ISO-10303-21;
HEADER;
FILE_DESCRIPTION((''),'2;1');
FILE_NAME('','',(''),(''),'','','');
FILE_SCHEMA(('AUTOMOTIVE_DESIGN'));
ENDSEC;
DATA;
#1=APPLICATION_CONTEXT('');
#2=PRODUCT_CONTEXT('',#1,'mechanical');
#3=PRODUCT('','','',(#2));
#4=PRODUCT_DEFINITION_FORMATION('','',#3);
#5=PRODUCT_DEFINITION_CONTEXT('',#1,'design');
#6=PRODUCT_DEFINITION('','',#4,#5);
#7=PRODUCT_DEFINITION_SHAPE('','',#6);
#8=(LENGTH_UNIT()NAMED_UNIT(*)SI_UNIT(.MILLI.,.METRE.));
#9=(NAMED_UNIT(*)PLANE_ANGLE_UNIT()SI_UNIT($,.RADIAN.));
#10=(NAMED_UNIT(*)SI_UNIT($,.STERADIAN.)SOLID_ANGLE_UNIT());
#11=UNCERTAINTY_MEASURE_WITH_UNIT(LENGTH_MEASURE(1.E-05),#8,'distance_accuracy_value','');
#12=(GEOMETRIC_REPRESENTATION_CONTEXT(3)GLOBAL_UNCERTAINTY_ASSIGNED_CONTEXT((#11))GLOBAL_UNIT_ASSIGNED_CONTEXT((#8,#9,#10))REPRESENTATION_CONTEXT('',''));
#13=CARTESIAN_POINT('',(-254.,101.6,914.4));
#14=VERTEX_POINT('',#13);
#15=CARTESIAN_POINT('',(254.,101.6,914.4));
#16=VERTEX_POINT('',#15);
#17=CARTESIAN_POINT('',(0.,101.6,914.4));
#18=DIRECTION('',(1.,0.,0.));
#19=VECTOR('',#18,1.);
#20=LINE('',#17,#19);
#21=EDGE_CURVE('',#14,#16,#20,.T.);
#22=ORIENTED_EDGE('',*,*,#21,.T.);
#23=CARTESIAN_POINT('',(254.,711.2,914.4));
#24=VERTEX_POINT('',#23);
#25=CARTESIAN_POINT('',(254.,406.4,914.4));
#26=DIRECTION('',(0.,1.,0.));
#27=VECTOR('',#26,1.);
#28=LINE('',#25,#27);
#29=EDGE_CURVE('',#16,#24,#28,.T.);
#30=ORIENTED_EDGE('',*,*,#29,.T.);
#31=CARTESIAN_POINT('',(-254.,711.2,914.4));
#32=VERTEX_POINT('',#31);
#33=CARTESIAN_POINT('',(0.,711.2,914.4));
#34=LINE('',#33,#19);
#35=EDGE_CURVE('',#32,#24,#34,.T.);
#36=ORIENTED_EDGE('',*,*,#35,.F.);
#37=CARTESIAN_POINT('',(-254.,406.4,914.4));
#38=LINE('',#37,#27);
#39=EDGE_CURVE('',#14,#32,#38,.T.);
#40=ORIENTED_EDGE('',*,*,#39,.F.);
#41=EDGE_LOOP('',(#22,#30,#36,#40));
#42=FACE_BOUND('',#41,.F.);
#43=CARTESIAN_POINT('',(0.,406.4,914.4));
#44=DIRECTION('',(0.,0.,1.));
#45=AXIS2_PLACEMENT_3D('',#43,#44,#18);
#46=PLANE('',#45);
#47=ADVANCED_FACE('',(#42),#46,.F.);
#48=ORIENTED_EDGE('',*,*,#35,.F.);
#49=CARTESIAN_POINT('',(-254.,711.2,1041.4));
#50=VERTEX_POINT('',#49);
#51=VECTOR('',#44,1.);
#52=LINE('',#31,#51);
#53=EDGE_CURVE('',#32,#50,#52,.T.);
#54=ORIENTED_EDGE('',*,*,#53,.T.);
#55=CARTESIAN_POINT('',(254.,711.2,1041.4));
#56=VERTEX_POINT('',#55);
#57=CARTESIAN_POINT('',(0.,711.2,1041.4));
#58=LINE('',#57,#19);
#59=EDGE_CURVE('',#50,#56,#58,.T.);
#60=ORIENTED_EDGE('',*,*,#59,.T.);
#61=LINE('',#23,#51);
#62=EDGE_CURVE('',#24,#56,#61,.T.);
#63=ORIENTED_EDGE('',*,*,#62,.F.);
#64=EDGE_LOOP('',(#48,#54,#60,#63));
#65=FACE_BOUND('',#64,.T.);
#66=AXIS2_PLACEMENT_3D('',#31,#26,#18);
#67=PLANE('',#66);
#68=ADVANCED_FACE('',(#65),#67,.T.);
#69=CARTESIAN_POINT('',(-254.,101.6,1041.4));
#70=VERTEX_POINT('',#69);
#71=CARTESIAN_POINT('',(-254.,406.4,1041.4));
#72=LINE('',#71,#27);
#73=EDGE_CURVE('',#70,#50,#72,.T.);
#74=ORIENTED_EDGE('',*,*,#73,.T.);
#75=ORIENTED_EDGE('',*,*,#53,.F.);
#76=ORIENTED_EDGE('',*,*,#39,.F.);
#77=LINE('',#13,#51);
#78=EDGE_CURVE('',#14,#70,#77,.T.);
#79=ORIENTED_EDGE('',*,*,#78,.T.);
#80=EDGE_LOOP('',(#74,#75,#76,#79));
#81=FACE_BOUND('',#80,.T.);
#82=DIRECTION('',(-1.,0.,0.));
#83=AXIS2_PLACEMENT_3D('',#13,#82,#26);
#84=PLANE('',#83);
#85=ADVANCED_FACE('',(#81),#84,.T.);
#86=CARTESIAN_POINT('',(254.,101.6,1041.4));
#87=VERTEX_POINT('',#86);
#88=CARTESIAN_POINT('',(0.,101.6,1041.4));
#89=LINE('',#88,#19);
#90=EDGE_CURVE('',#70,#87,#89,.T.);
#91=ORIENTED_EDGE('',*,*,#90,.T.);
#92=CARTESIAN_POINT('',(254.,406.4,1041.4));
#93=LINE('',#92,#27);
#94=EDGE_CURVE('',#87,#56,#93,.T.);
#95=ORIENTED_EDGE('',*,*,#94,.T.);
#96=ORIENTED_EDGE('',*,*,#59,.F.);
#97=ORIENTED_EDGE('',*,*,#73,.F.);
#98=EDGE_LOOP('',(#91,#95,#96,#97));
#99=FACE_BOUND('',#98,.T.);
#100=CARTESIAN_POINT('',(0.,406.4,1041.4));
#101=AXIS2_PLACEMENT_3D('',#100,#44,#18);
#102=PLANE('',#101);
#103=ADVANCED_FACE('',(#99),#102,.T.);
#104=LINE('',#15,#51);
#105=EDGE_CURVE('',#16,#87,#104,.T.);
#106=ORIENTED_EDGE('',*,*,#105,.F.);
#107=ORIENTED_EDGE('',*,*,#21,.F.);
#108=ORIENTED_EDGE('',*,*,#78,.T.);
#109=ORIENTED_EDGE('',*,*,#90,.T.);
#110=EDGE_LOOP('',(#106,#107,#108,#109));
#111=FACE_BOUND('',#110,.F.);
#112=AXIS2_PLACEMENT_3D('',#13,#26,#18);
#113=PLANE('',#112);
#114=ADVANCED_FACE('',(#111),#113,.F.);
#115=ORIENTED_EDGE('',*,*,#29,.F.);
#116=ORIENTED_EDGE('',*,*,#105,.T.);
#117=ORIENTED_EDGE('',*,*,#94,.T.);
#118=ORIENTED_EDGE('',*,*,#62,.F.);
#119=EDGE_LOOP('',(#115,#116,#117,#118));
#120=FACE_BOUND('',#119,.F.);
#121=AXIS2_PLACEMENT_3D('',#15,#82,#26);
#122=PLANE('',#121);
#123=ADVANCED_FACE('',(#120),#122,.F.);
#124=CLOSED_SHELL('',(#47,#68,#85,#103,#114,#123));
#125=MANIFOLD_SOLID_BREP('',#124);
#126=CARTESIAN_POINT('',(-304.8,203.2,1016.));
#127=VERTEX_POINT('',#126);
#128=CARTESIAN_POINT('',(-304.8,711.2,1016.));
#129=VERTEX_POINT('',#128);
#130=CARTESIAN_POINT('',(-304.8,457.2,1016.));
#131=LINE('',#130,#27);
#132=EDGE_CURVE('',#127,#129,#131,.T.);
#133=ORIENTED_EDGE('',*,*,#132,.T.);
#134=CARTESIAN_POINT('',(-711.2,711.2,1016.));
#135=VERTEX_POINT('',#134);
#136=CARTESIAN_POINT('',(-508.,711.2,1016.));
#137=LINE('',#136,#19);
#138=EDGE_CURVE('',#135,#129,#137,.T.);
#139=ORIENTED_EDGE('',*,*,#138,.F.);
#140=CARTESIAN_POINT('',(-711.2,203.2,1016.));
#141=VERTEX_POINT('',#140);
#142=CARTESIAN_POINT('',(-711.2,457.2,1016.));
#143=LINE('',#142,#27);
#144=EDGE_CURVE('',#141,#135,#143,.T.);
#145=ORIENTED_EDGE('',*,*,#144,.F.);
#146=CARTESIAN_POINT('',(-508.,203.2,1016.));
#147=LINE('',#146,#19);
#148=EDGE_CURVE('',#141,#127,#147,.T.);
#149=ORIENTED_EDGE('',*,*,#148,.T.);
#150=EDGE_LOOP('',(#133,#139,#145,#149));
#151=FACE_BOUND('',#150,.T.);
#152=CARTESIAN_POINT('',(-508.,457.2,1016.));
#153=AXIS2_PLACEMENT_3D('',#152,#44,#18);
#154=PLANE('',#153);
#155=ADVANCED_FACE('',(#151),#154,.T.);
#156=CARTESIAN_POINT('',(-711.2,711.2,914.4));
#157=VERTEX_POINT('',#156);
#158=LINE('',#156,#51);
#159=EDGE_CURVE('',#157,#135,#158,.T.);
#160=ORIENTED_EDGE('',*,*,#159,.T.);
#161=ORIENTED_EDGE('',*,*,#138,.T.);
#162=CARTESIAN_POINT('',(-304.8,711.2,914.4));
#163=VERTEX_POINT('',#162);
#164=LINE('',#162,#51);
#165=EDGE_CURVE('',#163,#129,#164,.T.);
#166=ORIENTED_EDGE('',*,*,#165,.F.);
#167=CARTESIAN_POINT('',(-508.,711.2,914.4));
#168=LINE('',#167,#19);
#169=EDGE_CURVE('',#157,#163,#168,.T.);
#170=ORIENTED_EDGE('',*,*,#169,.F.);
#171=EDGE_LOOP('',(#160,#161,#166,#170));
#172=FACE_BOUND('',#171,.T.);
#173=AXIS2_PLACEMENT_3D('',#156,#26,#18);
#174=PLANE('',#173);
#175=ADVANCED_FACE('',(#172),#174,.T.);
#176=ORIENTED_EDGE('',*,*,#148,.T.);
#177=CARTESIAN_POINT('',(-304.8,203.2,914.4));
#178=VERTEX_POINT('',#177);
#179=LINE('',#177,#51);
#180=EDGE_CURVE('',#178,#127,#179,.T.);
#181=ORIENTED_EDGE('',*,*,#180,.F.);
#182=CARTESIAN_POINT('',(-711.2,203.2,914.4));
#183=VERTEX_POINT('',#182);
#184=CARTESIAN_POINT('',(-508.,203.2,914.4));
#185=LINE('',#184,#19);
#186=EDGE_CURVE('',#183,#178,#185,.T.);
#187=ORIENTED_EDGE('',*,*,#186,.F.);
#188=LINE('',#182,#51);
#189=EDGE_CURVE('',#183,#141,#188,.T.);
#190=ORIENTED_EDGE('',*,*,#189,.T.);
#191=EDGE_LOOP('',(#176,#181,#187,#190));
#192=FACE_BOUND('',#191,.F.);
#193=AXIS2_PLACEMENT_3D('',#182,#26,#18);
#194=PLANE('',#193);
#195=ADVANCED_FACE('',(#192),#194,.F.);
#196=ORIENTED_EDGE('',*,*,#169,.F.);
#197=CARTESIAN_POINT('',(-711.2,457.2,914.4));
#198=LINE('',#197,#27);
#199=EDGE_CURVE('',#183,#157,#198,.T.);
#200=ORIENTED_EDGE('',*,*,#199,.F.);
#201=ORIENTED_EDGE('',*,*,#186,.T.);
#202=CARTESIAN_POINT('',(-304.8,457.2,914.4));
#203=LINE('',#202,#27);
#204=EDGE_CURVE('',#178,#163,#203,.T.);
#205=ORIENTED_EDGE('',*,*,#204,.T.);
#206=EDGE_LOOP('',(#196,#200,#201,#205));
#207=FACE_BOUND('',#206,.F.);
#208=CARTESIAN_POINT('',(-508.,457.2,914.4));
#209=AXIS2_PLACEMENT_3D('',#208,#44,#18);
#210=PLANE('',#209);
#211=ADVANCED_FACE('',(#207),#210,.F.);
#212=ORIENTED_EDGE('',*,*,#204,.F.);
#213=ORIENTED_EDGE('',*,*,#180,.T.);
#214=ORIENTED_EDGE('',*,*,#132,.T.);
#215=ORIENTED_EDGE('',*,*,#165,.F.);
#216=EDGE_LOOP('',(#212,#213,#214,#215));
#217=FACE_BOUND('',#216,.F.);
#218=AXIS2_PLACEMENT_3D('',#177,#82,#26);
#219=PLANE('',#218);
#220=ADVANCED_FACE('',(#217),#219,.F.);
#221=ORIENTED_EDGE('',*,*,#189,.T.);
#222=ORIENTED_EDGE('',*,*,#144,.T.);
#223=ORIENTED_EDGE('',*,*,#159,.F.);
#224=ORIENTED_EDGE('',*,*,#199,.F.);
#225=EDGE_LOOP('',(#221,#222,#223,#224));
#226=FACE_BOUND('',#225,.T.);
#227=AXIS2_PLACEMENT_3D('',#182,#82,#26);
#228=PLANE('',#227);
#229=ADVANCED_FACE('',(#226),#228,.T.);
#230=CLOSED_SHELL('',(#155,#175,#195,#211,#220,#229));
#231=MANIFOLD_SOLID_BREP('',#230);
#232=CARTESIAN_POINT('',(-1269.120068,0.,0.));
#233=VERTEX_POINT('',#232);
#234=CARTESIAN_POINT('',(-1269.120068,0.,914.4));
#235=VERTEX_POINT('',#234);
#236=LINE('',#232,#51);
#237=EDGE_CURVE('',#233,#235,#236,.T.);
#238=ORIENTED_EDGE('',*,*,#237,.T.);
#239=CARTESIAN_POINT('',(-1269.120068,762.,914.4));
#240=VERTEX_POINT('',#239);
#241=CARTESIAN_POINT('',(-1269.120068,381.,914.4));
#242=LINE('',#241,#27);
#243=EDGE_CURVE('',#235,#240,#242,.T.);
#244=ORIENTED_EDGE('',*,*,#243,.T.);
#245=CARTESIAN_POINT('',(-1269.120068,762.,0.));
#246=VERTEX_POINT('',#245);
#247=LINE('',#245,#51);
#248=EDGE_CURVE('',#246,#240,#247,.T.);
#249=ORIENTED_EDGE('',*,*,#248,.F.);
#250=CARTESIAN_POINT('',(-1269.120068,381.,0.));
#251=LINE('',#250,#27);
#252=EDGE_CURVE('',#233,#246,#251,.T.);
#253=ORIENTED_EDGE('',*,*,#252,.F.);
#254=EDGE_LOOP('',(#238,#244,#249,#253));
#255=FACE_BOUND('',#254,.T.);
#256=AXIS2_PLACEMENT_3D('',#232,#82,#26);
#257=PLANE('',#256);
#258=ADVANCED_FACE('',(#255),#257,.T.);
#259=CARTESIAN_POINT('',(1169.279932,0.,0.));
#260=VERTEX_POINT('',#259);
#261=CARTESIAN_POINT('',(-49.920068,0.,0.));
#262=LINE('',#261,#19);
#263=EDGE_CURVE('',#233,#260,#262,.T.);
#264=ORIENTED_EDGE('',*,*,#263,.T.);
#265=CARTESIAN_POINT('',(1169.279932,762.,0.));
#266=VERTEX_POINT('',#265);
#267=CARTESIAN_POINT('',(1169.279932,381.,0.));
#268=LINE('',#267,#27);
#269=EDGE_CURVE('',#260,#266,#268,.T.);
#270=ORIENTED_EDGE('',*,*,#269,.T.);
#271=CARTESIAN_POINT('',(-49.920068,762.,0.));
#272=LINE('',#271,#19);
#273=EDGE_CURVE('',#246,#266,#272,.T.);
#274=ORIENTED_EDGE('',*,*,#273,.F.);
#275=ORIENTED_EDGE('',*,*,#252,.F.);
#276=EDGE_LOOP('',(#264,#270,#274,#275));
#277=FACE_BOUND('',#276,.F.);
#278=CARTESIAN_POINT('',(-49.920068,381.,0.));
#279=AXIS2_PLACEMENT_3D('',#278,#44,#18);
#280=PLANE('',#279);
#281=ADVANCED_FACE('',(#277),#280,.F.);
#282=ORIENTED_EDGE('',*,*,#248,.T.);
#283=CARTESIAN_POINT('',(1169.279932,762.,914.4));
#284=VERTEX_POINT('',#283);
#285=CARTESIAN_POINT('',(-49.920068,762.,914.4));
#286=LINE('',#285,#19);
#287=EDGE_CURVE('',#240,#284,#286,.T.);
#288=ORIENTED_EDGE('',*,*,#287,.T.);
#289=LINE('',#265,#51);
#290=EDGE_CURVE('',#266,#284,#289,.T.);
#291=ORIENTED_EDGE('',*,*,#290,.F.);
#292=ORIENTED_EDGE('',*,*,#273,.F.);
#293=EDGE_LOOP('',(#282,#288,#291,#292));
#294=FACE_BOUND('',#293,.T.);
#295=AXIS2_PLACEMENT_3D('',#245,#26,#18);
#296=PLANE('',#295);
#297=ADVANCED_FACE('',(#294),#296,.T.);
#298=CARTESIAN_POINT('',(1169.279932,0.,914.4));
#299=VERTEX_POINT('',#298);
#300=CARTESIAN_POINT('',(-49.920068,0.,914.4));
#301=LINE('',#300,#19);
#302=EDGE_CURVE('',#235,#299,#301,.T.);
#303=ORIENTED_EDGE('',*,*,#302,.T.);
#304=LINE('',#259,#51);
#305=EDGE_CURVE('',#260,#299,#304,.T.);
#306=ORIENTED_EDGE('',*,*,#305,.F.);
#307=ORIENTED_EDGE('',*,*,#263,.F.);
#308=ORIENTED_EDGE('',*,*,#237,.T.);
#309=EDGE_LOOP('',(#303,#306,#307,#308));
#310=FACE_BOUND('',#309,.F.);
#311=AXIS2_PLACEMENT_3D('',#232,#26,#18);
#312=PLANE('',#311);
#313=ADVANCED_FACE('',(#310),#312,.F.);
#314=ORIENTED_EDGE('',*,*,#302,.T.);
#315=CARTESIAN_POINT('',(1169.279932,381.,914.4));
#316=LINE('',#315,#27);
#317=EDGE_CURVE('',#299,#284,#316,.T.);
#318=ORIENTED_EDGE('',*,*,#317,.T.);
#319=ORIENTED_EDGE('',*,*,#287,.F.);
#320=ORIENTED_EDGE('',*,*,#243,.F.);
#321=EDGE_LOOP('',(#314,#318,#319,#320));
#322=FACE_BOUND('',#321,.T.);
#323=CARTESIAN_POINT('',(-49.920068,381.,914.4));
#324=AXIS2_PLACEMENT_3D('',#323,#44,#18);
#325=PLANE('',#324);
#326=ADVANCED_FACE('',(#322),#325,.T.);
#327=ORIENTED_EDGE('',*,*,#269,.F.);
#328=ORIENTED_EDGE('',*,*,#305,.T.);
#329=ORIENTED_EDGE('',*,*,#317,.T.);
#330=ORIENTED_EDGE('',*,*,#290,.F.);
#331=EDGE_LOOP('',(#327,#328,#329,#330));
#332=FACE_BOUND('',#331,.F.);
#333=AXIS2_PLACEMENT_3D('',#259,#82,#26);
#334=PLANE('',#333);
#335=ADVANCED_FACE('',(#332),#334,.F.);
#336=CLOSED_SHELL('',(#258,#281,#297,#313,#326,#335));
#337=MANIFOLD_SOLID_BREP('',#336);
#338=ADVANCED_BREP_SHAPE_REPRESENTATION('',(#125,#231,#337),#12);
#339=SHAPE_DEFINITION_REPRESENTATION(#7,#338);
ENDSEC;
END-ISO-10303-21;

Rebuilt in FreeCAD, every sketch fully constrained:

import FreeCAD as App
import Part
import Sketcher
from FreeCAD import Vector
Q = App.Units.Quantity


def add_polygon(sketch, points):
    """Adds a closed chain of lines whose ends are joined by coincident constraints."""
    first, n = sketch.GeometryCount, len(points)
    for a, b in zip(points, points[1:] + points[:1]):
        sketch.addGeometry(Part.LineSegment(App.Vector(*a, 0), App.Vector(*b, 0)), False)
    for i in range(n):
        sketch.addConstraint(Sketcher.Constraint("Coincident", first + i, 2, first + (i + 1) % n, 1))

doc = App.newDocument("Part")
params = doc.addObject("Spreadsheet::Sheet", "Params")
for row, (alias, value) in enumerate([
    ("sketch1_width", "96 in"),
    ("sketch1_height", "30 in"),
    ("pad1_length", "36 in"),
    ("sketch2_width", "20 in"),
    ("sketch2_height", "24 in"),
    ("pad2_length", "5 in"),
    ("sketch3_width", "16 in"),
    ("sketch3_height", "20 in"),
    ("pad3_length", "4 in"),
], start=1):
    params.set(f"A{row}", alias)
    params.set(f"B{row}", "=" + value)
    params.setAlias(f"B{row}", alias)

body = doc.addObject("PartDesign::Body", "Body")

sketch1 = doc.addObject("Sketcher::SketchObject", "Sketch")
body.addObject(sketch1)
sketch1.AttachmentSupport = (doc.XY_Plane, [""])
sketch1.MapMode = "FlatFace"
add_polygon(sketch1, [(-1269, 762), (-1269, 0), (1169, 0), (1169, 762)])
sketch1.addConstraint(Sketcher.Constraint("Vertical", 0))
sketch1.addConstraint(Sketcher.Constraint("Horizontal", 1))
sketch1.addConstraint(Sketcher.Constraint("Vertical", 2))
sketch1.addConstraint(Sketcher.Constraint("Horizontal", 3))
sketch1.addConstraint(Sketcher.Constraint("PointOnObject", 0, 2, -1))
sketch1.addConstraint(Sketcher.Constraint("DistanceX", 1, 1, 1, 2, Q("96 in")))
sketch1.addConstraint(Sketcher.Constraint("DistanceY", 0, 2, 0, 1, Q("30 in")))
sketch1.addConstraint(Sketcher.Constraint("DistanceX", 0, 2, -1, 1, Q("1269.120068 mm")))
sketch1.setExpression("Constraints[9]", "Params.sketch1_width")
sketch1.setExpression("Constraints[10]", "Params.sketch1_height")
pad1 = doc.addObject("PartDesign::Pad", "Pad")
body.addObject(pad1)
pad1.Profile = sketch1
pad1.setExpression("Length", "Params.pad1_length")
body2 = doc.addObject("PartDesign::Body", "Body001")

sketch2 = doc.addObject("Sketcher::SketchObject", "Sketch001")
body2.addObject(sketch2)
sketch2.AttachmentSupport = (doc.getObject("XY_Plane001"), [""])
sketch2.MapMode = "FlatFace"
sketch2.AttachmentOffset = App.Placement(Vector(0, 0, 36 * 25.4), App.Rotation())
add_polygon(sketch2, [(-254, 711), (-254, 102), (254, 102), (254, 711)])
sketch2.addConstraint(Sketcher.Constraint("Vertical", 0))
sketch2.addConstraint(Sketcher.Constraint("Horizontal", 1))
sketch2.addConstraint(Sketcher.Constraint("Vertical", 2))
sketch2.addConstraint(Sketcher.Constraint("Horizontal", 3))
sketch2.addConstraint(Sketcher.Constraint("DistanceX", 1, 1, 1, 2, Q("20 in")))
sketch2.addConstraint(Sketcher.Constraint("DistanceY", 0, 2, 0, 1, Q("24 in")))
sketch2.addConstraint(Sketcher.Constraint("DistanceX", 0, 2, -1, 1, Q("10 in")))
sketch2.addConstraint(Sketcher.Constraint("DistanceY", -1, 1, 0, 2, Q("4 in")))
sketch2.setExpression("Constraints[8]", "Params.sketch2_width")
sketch2.setExpression("Constraints[9]", "Params.sketch2_height")
pad2 = doc.addObject("PartDesign::Pad", "Pad001")
body2.addObject(pad2)
pad2.Profile = sketch2
pad2.setExpression("Length", "Params.pad2_length")
body3 = doc.addObject("PartDesign::Body", "Body002")

sketch3 = doc.addObject("Sketcher::SketchObject", "Sketch002")
body3.addObject(sketch3)
sketch3.AttachmentSupport = (doc.getObject("XY_Plane002"), [""])
sketch3.MapMode = "FlatFace"
sketch3.AttachmentOffset = App.Placement(Vector(0, 0, 36 * 25.4), App.Rotation())
add_polygon(sketch3, [(-711, 711), (-711, 203), (-305, 203), (-305, 711)])
sketch3.addConstraint(Sketcher.Constraint("Vertical", 0))
sketch3.addConstraint(Sketcher.Constraint("Horizontal", 1))
sketch3.addConstraint(Sketcher.Constraint("Vertical", 2))
sketch3.addConstraint(Sketcher.Constraint("Horizontal", 3))
sketch3.addConstraint(Sketcher.Constraint("DistanceX", 1, 1, 1, 2, Q("16 in")))
sketch3.addConstraint(Sketcher.Constraint("DistanceY", 0, 2, 0, 1, Q("20 in")))
sketch3.addConstraint(Sketcher.Constraint("DistanceX", 0, 2, -1, 1, Q("28 in")))
sketch3.addConstraint(Sketcher.Constraint("DistanceY", -1, 1, 0, 2, Q("8 in")))
sketch3.setExpression("Constraints[8]", "Params.sketch3_width")
sketch3.setExpression("Constraints[9]", "Params.sketch3_height")
pad3 = doc.addObject("PartDesign::Pad", "Pad002")
body3.addObject(pad3)
pad3.Profile = sketch3
pad3.setExpression("Length", "Params.pad3_length")

doc.recompute()
